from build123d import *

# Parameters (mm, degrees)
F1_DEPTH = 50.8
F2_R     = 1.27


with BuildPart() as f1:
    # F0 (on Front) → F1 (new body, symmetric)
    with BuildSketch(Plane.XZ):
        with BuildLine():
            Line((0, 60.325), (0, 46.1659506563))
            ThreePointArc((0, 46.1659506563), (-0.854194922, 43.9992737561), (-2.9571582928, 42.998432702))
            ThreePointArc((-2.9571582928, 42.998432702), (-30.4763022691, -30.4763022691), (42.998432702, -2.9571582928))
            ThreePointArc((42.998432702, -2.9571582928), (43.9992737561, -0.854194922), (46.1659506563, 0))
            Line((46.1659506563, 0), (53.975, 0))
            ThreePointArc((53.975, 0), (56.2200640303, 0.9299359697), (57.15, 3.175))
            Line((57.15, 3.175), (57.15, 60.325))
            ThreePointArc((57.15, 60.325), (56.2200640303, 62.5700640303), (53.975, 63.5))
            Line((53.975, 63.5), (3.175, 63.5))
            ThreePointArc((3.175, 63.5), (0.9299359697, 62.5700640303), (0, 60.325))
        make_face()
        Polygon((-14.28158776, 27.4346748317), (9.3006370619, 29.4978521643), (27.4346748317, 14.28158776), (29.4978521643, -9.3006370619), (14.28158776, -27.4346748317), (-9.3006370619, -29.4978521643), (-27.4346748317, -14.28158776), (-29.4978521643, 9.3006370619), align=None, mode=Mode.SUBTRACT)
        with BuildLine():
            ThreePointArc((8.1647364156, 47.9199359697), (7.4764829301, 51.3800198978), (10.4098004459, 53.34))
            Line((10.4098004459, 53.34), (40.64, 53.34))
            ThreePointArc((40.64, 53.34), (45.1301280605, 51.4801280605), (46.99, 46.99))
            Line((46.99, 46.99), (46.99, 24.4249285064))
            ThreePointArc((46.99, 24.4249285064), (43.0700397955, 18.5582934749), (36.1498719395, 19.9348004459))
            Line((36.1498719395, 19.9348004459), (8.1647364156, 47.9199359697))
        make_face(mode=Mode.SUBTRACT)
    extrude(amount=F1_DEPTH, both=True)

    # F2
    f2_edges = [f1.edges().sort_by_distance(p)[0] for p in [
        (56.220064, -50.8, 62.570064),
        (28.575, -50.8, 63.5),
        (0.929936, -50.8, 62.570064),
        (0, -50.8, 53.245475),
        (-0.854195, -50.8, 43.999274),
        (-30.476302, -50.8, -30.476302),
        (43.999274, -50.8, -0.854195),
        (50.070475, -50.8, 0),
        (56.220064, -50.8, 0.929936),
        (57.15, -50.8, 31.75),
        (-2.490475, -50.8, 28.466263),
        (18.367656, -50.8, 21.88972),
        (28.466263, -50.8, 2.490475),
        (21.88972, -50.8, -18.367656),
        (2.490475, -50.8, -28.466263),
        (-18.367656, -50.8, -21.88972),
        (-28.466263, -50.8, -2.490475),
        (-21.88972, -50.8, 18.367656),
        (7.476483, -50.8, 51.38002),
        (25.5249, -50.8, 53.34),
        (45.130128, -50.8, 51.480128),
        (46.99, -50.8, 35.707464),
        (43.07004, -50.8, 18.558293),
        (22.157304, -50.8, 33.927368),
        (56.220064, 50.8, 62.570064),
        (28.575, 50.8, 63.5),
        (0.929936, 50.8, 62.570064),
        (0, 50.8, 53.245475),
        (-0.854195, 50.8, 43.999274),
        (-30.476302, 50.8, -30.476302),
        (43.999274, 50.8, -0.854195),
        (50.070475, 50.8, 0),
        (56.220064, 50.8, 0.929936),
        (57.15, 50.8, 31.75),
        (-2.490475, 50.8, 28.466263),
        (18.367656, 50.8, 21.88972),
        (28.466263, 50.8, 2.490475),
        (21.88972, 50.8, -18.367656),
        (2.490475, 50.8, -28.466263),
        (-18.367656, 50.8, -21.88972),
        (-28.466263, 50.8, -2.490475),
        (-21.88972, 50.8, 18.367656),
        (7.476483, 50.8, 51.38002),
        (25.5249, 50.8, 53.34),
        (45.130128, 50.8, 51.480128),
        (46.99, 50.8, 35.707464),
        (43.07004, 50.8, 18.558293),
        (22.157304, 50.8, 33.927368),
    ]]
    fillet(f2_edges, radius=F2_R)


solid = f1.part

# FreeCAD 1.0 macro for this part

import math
import FreeCAD as App
import Part
import Sketcher
Q = App.Units.Quantity


def edges_at(feature, points):
    """Names of the edges that pass closest to the given points."""
    edges = feature.Shape.Edges
    near = lambda p: min(range(len(edges)), key=lambda i: edges[i].distToShape(Part.Vertex(*p))[0])
    return sorted({f"Edge{near(p) + 1}" for p in points})


def add_polygon(sketch, points):
    """Adds a closed chain of lines whose ends are joined by coincident constraints."""
    first, n = sketch.GeometryCount, len(points)
    for a, b in zip(points, points[1:] + points[:1]):
        sketch.addGeometry(Part.LineSegment(App.Vector(*a, 0), App.Vector(*b, 0)), False)
    for i in range(n):
        sketch.addConstraint(Sketcher.Constraint("Coincident", first + i, 2, first + (i + 1) % n, 1))

doc = App.newDocument("Part")
params = doc.addObject("Spreadsheet::Sheet", "Params")
for row, (alias, value) in enumerate([
    ("sketch1_width", "2 in"),
    ("sketch1_radius", "0.25 in"),
    ("sketch1_radius2", "0.125 in"),
    ("sketch1_height", "2.25 in"),
    ("pad1_length", "4 in"),
    ("fillet_radius", "0.05 in"),
], start=1):
    params.set(f"A{row}", alias)
    params.set(f"B{row}", "=" + value)
    params.setAlias(f"B{row}", alias)

body = doc.addObject("PartDesign::Body", "Body")

# Sketch on XZ plane
sketch1 = body.newObject("Sketcher::SketchObject", "Sketch")
sketch1.AttachmentSupport = (doc.getObject("XZ_Plane"), [""])
sketch1.MapMode = "FlatFace"
sketch1.addGeometry(Part.LineSegment(App.Vector(0, 60.3, 0), App.Vector(0, 46.2, 0)), False)  # 0
sketch1.addGeometry(Part.ArcOfCircle(Part.Circle(App.Vector(-3.2, 46.2, 0), App.Vector(0, 0, 1), 3.2), math.radians(-86), math.radians(0)), False)  # 1
sketch1.addGeometry(Part.ArcOfCircle(Part.Circle(App.Vector(0, 0, 0), App.Vector(0, 0, 1), 43.1), math.radians(94), math.radians(356)), False)  # 2
sketch1.addGeometry(Part.ArcOfCircle(Part.Circle(App.Vector(46.2, -3.2, 0), App.Vector(0, 0, 1), 3.2), math.radians(90), math.radians(176)), False)  # 3
sketch1.addGeometry(Part.LineSegment(App.Vector(46.2, 0, 0), App.Vector(54, 0, 0)), False)  # 4
sketch1.addGeometry(Part.ArcOfCircle(Part.Circle(App.Vector(54, 3.2, 0), App.Vector(0, 0, 1), 3.2), math.radians(-90), math.radians(0)), False)  # 5
sketch1.addGeometry(Part.LineSegment(App.Vector(57.1, 3.2, 0), App.Vector(57.1, 60.3, 0)), False)  # 6
sketch1.addGeometry(Part.ArcOfCircle(Part.Circle(App.Vector(54, 60.3, 0), App.Vector(0, 0, 1), 3.2), math.radians(0), math.radians(90)), False)  # 7
sketch1.addGeometry(Part.LineSegment(App.Vector(54, 63.5, 0), App.Vector(3.2, 63.5, 0)), False)  # 8
sketch1.addGeometry(Part.ArcOfCircle(Part.Circle(App.Vector(3.2, 60.3, 0), App.Vector(0, 0, 1), 3.2), math.radians(90), math.radians(180)), False)  # 9
add_polygon(sketch1, [(-29.5, 9.3), (-14.3, 27.4), (9.3, 29.5), (27.4, 14.3), (29.5, -9.3), (14.3, -27.4), (-9.3, -29.5), (-27.4, -14.3)])  # lines 10-17
sketch1.addGeometry(Part.LineSegment(App.Vector(36.1, 19.9, 0), App.Vector(8.2, 47.9, 0)), False)  # 18
sketch1.addGeometry(Part.ArcOfCircle(Part.Circle(App.Vector(10.4, 50.2, 0), App.Vector(0, 0, 1), 3.2), math.radians(90), math.radians(225)), False)  # 19
sketch1.addGeometry(Part.LineSegment(App.Vector(10.4, 53.3, 0), App.Vector(40.6, 53.3, 0)), False)  # 20
sketch1.addGeometry(Part.ArcOfCircle(Part.Circle(App.Vector(40.6, 47, 0), App.Vector(0, 0, 1), 6.3), math.radians(0), math.radians(90)), False)  # 21
sketch1.addGeometry(Part.LineSegment(App.Vector(47, 47, 0), App.Vector(47, 24.4, 0)), False)  # 22
sketch1.addGeometry(Part.ArcOfCircle(Part.Circle(App.Vector(40.6, 24.4, 0), App.Vector(0, 0, 1), 6.3), math.radians(-135), math.radians(0)), False)  # 23
sketch1.addConstraint([
    Sketcher.Constraint("Tangent", 0, 2, 1, 2),
    Sketcher.Constraint("Tangent", 1, 1, 2, 1),
    Sketcher.Constraint("Tangent", 2, 2, 3, 2),
    Sketcher.Constraint("Tangent", 3, 1, 4, 1),
    Sketcher.Constraint("Tangent", 4, 2, 5, 1),
    Sketcher.Constraint("Tangent", 5, 2, 6, 1),
    Sketcher.Constraint("Tangent", 6, 2, 7, 1),
    Sketcher.Constraint("Tangent", 7, 2, 8, 1),
    Sketcher.Constraint("Tangent", 8, 2, 9, 1),
    Sketcher.Constraint("Tangent", 9, 2, 0, 1),
    Sketcher.Constraint("Tangent", 18, 2, 19, 2),
    Sketcher.Constraint("Tangent", 19, 1, 20, 1),
    Sketcher.Constraint("Tangent", 20, 2, 21, 2),
    Sketcher.Constraint("Tangent", 21, 1, 22, 1),
    Sketcher.Constraint("Tangent", 22, 2, 23, 2),
    Sketcher.Constraint("Tangent", 23, 1, 18, 1),
    Sketcher.Constraint("Vertical", 0),
    Sketcher.Constraint("Horizontal", 4),
    Sketcher.Constraint("Vertical", 6),
    Sketcher.Constraint("Horizontal", 8),
    Sketcher.Constraint("Horizontal", 20),
    Sketcher.Constraint("Vertical", 22),
    Sketcher.Constraint("Coincident", 2, 3, -1, 1),
    Sketcher.Constraint("Equal", 1, 3),
    Sketcher.Constraint("Equal", 3, 5),
    Sketcher.Constraint("Equal", 5, 7),
    Sketcher.Constraint("Equal", 7, 9),
    Sketcher.Constraint("Equal", 9, 19),
    Sketcher.Constraint("Equal", 21, 23),
    Sketcher.Constraint("Symmetric", 10, 2, 14, 2, -1, 1),
    Sketcher.Constraint("Symmetric", 11, 2, 15, 2, -1, 1),
    Sketcher.Constraint("Symmetric", 12, 2, 16, 2, -1, 1),
    Sketcher.Constraint("Symmetric", 13, 2, 17, 2, -1, 1),
    Sketcher.Constraint("PointOnObject", 0, 2, -2),
    Sketcher.Constraint("PointOnObject", 3, 1, -1),
    Sketcher.Constraint("Perpendicular", 10, 12),
    Sketcher.Constraint("Perpendicular", 11, 13),
    Sketcher.Constraint("Equal", 10, 11),
    Sketcher.Constraint("Equal", 11, 12),
    Sketcher.Constraint("Equal", 12, 13),
    Sketcher.Constraint("DistanceX", 8, 2, 8, 1, Q("2 in")),
    Sketcher.Constraint("Radius", 21, Q("0.25 in")),
    Sketcher.Constraint("Angle", 10, Q("50 deg")),
    Sketcher.Constraint("Angle", 11, Q("5 deg")),
    Sketcher.Constraint("Angle", 18, Q("135 deg")),
    Sketcher.Constraint("Radius", 1, Q("0.125 in")),
    Sketcher.Constraint("DistanceY", 6, 1, 6, 2, Q("2.25 in")),
    Sketcher.Constraint("DistanceX", -1, 1, 21, 3, Q("1.6 in")),
    Sketcher.Constraint("DistanceY", -1, 1, 19, 1, Q("2.1 in")),
    Sketcher.Constraint("Radius", 2, 43.1),
    Sketcher.Constraint("DistanceX", 20, 1, 20, 2, 30.2302),
    Sketcher.Constraint("DistanceY", 15, 2, 12, 2, Q("1.7236 in")),
])
sketch1.setExpression("Constraints[48]", "Params.sketch1_width")
sketch1.setExpression("Constraints[49]", "Params.sketch1_radius")
sketch1.setExpression("Constraints[53]", "Params.sketch1_radius2")
sketch1.setExpression("Constraints[54]", "Params.sketch1_height")
pad1 = body.newObject("PartDesign::Pad", "Pad")
pad1.Profile = sketch1
pad1.setExpression("Length", "Params.pad1_length")
pad1.Midplane = True
doc.recompute()

fillet = body.newObject("PartDesign::Fillet", "Fillet")
fillet.Base = (pad1, edges_at(pad1, [
    (56.22, -50.8, 62.57),
    (28.575, -50.8, 63.5),
    (0.93, -50.8, 62.57),
    (0, -50.8, 53.245),
    (-0.854, -50.8, 43.999),
    (-30.476, -50.8, -30.476),
    (43.999, -50.8, -0.854),
    (50.07, -50.8, 0),
    (56.22, -50.8, 0.93),
    (57.15, -50.8, 31.75),
    (-2.49, -50.8, 28.466),
    (18.368, -50.8, 21.89),
    (28.466, -50.8, 2.49),
    (21.89, -50.8, -18.368),
    (2.49, -50.8, -28.466),
    (-18.368, -50.8, -21.89),
    (-28.466, -50.8, -2.49),
    (-21.89, -50.8, 18.368),
    (7.476, -50.8, 51.38),
    (25.525, -50.8, 53.34),
    (45.13, -50.8, 51.48),
    (46.99, -50.8, 35.707),
    (43.07, -50.8, 18.558),
    (22.157, -50.8, 33.927),
    (56.22, 50.8, 62.57),
    (28.575, 50.8, 63.5),
    (0.93, 50.8, 62.57),
    (0, 50.8, 53.245),
    (-0.854, 50.8, 43.999),
    (-30.476, 50.8, -30.476),
    (43.999, 50.8, -0.854),
    (50.07, 50.8, 0),
    (56.22, 50.8, 0.93),
    (57.15, 50.8, 31.75),
    (-2.49, 50.8, 28.466),
    (18.368, 50.8, 21.89),
    (28.466, 50.8, 2.49),
    (21.89, 50.8, -18.368),
    (2.49, 50.8, -28.466),
    (-18.368, 50.8, -21.89),
    (-28.466, 50.8, -2.49),
    (-21.89, 50.8, 18.368),
    (7.476, 50.8, 51.38),
    (25.525, 50.8, 53.34),
    (45.13, 50.8, 51.48),
    (46.99, 50.8, 35.707),
    (43.07, 50.8, 18.558),
    (22.157, 50.8, 33.927),
]))
fillet.setExpression("Radius", "Params.fillet_radius")

doc.recompute()
